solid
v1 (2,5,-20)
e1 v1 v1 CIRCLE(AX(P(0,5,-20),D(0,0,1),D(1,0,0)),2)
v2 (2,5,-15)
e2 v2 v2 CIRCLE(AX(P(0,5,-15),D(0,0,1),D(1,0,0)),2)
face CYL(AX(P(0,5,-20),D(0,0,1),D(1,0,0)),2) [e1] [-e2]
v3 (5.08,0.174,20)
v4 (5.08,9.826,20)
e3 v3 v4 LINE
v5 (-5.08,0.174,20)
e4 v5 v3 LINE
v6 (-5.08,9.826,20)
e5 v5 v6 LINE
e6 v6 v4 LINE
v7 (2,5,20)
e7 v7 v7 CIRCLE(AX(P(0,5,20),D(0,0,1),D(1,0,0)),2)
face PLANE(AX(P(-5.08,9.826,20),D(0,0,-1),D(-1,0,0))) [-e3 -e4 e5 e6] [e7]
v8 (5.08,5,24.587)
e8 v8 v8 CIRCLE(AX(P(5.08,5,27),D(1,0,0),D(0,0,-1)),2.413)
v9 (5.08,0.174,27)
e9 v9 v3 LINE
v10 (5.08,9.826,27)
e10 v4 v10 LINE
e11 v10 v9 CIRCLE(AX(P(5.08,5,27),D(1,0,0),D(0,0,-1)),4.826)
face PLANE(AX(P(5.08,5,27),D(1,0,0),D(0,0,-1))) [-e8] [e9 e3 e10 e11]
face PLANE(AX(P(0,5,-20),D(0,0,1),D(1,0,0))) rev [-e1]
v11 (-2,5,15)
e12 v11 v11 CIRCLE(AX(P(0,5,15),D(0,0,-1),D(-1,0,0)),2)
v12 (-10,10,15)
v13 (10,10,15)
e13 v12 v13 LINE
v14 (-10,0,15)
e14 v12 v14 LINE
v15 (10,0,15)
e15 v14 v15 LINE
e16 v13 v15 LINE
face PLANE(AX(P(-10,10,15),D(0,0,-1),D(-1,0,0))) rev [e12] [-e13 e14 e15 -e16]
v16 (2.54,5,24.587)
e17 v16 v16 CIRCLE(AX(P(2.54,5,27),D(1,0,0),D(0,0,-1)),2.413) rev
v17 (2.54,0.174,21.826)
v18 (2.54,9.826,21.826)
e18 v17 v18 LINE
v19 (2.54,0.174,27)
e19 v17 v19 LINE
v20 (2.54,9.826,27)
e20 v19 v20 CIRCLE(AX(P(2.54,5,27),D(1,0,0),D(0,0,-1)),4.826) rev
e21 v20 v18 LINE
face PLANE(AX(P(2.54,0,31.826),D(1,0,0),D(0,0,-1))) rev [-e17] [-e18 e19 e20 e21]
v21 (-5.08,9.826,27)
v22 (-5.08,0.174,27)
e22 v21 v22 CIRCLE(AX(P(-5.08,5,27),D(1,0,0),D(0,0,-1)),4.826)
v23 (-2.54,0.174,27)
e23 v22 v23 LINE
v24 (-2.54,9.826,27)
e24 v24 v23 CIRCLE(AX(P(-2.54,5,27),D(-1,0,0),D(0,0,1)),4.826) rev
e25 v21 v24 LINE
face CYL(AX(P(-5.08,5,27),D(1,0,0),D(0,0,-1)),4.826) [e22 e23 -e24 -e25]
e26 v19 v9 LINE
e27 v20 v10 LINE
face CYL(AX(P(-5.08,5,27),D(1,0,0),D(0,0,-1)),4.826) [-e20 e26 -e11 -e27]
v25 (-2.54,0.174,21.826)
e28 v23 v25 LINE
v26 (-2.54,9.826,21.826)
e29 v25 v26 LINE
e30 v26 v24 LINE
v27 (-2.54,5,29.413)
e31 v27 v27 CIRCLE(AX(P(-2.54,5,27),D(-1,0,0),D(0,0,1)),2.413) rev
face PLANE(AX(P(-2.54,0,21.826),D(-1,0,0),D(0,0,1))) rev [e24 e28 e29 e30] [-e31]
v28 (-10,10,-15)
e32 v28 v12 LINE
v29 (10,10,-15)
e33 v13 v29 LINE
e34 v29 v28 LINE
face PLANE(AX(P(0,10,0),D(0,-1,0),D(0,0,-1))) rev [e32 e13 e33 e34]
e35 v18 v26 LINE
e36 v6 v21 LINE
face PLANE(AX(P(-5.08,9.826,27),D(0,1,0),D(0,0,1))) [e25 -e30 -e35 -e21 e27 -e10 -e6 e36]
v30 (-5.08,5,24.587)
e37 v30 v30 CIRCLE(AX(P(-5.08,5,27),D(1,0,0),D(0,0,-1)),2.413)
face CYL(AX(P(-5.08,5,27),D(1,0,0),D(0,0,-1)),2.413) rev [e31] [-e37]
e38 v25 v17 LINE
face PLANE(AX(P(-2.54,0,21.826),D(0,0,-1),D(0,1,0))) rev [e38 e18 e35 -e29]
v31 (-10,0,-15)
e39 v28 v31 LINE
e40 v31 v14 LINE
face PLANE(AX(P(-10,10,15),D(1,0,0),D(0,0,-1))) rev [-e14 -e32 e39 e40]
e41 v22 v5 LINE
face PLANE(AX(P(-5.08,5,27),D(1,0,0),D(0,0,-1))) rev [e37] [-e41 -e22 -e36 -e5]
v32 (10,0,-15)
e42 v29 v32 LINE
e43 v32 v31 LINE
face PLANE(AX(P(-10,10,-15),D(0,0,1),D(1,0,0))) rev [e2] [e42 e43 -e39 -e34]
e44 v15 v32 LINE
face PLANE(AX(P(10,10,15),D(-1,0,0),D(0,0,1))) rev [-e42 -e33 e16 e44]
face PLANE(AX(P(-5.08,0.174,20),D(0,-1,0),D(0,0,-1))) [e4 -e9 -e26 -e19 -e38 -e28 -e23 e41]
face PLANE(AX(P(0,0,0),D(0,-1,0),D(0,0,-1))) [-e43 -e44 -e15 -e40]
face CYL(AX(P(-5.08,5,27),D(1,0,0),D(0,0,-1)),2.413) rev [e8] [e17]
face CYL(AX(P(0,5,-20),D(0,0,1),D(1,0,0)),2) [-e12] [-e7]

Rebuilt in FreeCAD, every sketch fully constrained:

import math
import FreeCAD as App
import Part
import Sketcher
from FreeCAD import Vector


def add_polygon(sketch, points):
    """Adds a closed chain of lines whose ends are joined by coincident constraints."""
    first, n = sketch.GeometryCount, len(points)
    for a, b in zip(points, points[1:] + points[:1]):
        sketch.addGeometry(Part.LineSegment(App.Vector(*a, 0), App.Vector(*b, 0)), False)
    for i in range(n):
        sketch.addConstraint(Sketcher.Constraint("Coincident", first + i, 2, first + (i + 1) % n, 1))

doc = App.newDocument("Part")
body = doc.addObject("PartDesign::Body", "Body")

# Sketch on XZ plane
sketch1 = doc.addObject("Sketcher::SketchObject", "Sketch")
body.addObject(sketch1)
sketch1.AttachmentSupport = (doc.XZ_Plane, [""])
sketch1.MapMode = "FlatFace"
add_polygon(sketch1, [(-10, -15), (-10, 15), (10, 15), (10, -15)])  # lines 0-3
sketch1.addConstraint(Sketcher.Constraint("Vertical", 0))
sketch1.addConstraint(Sketcher.Constraint("Horizontal", 1))
sketch1.addConstraint(Sketcher.Constraint("Vertical", 2))
sketch1.addConstraint(Sketcher.Constraint("Horizontal", 3))
sketch1.addConstraint(Sketcher.Constraint("Symmetric", 0, 2, 2, 2, -1, 1))
sketch1.addConstraint(Sketcher.Constraint("DistanceX", 1, 1, 1, 2, 20.0))
sketch1.addConstraint(Sketcher.Constraint("DistanceY", 0, 1, 0, 2, 30.0))
pad1 = doc.addObject("PartDesign::Pad", "Pad")
body.addObject(pad1)
pad1.Profile = sketch1
pad1.Length = 10
pad1.Reversed = True

# Sketch on XY plane
sketch2 = doc.addObject("Sketcher::SketchObject", "Sketch001")
body.addObject(sketch2)
sketch2.AttachmentSupport = (doc.XY_Plane, [""])
sketch2.MapMode = "FlatFace"
sketch2.addGeometry(Part.Circle(Vector(0, 5, 0), Vector(0, 0, 1), 2), False)
sketch2.addConstraint(Sketcher.Constraint("PointOnObject", 0, 3, -2))
sketch2.addConstraint(Sketcher.Constraint("Diameter", 0, 4.0))
sketch2.addConstraint(Sketcher.Constraint("DistanceY", -1, 1, 0, 3, 5.0))
pad2 = doc.addObject("PartDesign::Pad", "Pad001")
body.addObject(pad2)
pad2.Profile = sketch2
pad2.Type = "TwoLengths"
pad2.Length = 20
pad2.Length2 = 20

# Sketch on YZ plane
sketch3 = doc.addObject("Sketcher::SketchObject", "Sketch002")
body.addObject(sketch3)
sketch3.AttachmentSupport = (doc.YZ_Plane, [""])
sketch3.MapMode = "FlatFace"
sketch3.addGeometry(Part.LineSegment(Vector(9.8, 20, 0), Vector(9.8, 27, 0)), False)
sketch3.addGeometry(Part.ArcOfCircle(Part.Circle(Vector(5, 27, 0), Vector(0, 0, 1), 4.8), math.radians(0), math.radians(180)), False)
sketch3.addGeometry(Part.LineSegment(Vector(0.2, 27, 0), Vector(0.2, 20, 0)), False)
sketch3.addGeometry(Part.LineSegment(Vector(0.2, 20, 0), Vector(9.8, 20, 0)), False)
sketch3.addGeometry(Part.Circle(Vector(5, 27, 0), Vector(0, 0, 1), 2.4), False)
sketch3.addConstraint(Sketcher.Constraint("Tangent", 0, 2, 1, 1))
sketch3.addConstraint(Sketcher.Constraint("Tangent", 1, 2, 2, 1))
sketch3.addConstraint(Sketcher.Constraint("Coincident", 2, 2, 3, 1))
sketch3.addConstraint(Sketcher.Constraint("Coincident", 3, 2, 0, 1))
sketch3.addConstraint(Sketcher.Constraint("Vertical", 0))
sketch3.addConstraint(Sketcher.Constraint("Vertical", 2))
sketch3.addConstraint(Sketcher.Constraint("Horizontal", 3))
sketch3.addConstraint(Sketcher.Constraint("Coincident", 4, 3, 1, 3))
sketch3.addConstraint(Sketcher.Constraint("DistanceY", 0, 1, 0, 2, 7.0))
sketch3.addConstraint(Sketcher.Constraint("Diameter", 4, 4.826))
sketch3.addConstraint(Sketcher.Constraint("DistanceX", -1, 1, 1, 3, 5.0))
sketch3.addConstraint(Sketcher.Constraint("DistanceY", -1, 1, 1, 3, 27.0))
sketch3.addConstraint(Sketcher.Constraint("Radius", 1, 4.826))
pad3 = doc.addObject("PartDesign::Pad", "Pad002")
body.addObject(pad3)
pad3.Profile = sketch3
pad3.Type = "TwoLengths"
pad3.Length = 5.08
pad3.Length2 = 5.08

# Sketch on XZ plane
sketch4 = doc.addObject("Sketcher::SketchObject", "Sketch003")
body.addObject(sketch4)
sketch4.AttachmentSupport = (doc.XZ_Plane, [""])
sketch4.MapMode = "FlatFace"
sketch4.AttachmentOffset = App.Placement(Vector(0, 0, -9.826), App.Rotation())
add_polygon(sketch4, [(-3, 22), (-3, 32), (3, 32), (3, 22)])  # lines 0-3
sketch4.addConstraint(Sketcher.Constraint("Vertical", 0))
sketch4.addConstraint(Sketcher.Constraint("Horizontal", 1))
sketch4.addConstraint(Sketcher.Constraint("Vertical", 2))
sketch4.addConstraint(Sketcher.Constraint("Horizontal", 3))
sketch4.addConstraint(Sketcher.Constraint("DistanceY", 0, 1, 0, 2, 10.0))
sketch4.addConstraint(Sketcher.Constraint("DistanceX", 1, 1, 1, 2, 5.08))
sketch4.addConstraint(Sketcher.Constraint("DistanceX", 0, 2, -1, 1, 2.54))
sketch4.addConstraint(Sketcher.Constraint("DistanceY", -1, 1, 0, 2, 31.826))
pocket1 = doc.addObject("PartDesign::Pocket", "Pocket")
body.addObject(pocket1)
pocket1.Profile = sketch4
pocket1.Type = "ThroughAll"
pocket1.Reversed = True

doc.recompute()
